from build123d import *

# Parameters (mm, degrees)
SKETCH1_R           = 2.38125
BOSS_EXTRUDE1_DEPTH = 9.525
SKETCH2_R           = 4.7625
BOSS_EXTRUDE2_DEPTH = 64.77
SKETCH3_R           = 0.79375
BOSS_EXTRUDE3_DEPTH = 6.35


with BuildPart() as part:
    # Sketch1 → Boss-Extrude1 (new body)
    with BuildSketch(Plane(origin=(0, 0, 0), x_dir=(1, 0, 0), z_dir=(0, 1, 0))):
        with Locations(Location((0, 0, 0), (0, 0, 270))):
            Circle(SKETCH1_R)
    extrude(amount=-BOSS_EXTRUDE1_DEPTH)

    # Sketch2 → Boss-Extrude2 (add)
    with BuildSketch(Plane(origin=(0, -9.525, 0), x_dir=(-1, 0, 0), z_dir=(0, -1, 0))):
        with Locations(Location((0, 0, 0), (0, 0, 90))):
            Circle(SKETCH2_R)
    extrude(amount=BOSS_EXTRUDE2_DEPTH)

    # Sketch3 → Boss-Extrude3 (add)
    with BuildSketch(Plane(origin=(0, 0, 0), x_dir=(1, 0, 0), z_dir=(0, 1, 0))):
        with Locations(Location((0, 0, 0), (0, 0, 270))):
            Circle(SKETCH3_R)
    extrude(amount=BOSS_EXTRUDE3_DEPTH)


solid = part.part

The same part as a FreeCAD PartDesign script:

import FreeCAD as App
import Part
import Sketcher

V = App.Vector
Q = App.Units.Quantity

doc = App.newDocument("Part")
body = doc.addObject("PartDesign::Body", "Body")

sketch1 = body.newObject("Sketcher::SketchObject", "Sketch")
sketch1.AttachmentSupport = (doc.getObject("XZ_Plane"), [""])
sketch1.MapMode = "FlatFace"
sketch1.addGeometry(Part.Circle(V(0, 0, 0), V(0, 0, 1), 2.4), False)
sketch1.addConstraint([
    Sketcher.Constraint("Coincident", 0, 3, -1, 1),
    Sketcher.Constraint("Diameter", 0, Q("0.1875 in")),
])
pad1 = body.newObject("PartDesign::Pad", "Pad")
pad1.Profile = sketch1
pad1.Length = Q("0.375 in")

sketch2 = body.newObject("Sketcher::SketchObject", "Sketch001")
sketch2.AttachmentSupport = (doc.getObject("XZ_Plane"), [""])
sketch2.MapMode = "FlatFace"
sketch2.AttachmentOffset = App.Placement(V(0, 0, 0.375 * 25.4), App.Rotation())
sketch2.addGeometry(Part.Circle(V(0, 0, 0), V(0, 0, 1), 4.8), False)
sketch2.addConstraint([
    Sketcher.Constraint("Coincident", 0, 3, -1, 1),
    Sketcher.Constraint("Diameter", 0, Q("0.375 in")),
])
pad2 = body.newObject("PartDesign::Pad", "Pad001")
pad2.Profile = sketch2
pad2.Length = Q("2.55 in")

sketch3 = body.newObject("Sketcher::SketchObject", "Sketch002")
sketch3.AttachmentSupport = (doc.getObject("XZ_Plane"), [""])
sketch3.MapMode = "FlatFace"
sketch3.addGeometry(Part.Circle(V(0, 0, 0), V(0, 0, 1), 0.8), False)
sketch3.addConstraint([
    Sketcher.Constraint("Coincident", 0, 3, -1, 1),
    Sketcher.Constraint("Diameter", 0, Q("0.0625 in")),
])
pad3 = body.newObject("PartDesign::Pad", "Pad002")
pad3.Profile = sketch3
pad3.Length = Q("0.25 in")
pad3.Reversed = True

doc.recompute()
